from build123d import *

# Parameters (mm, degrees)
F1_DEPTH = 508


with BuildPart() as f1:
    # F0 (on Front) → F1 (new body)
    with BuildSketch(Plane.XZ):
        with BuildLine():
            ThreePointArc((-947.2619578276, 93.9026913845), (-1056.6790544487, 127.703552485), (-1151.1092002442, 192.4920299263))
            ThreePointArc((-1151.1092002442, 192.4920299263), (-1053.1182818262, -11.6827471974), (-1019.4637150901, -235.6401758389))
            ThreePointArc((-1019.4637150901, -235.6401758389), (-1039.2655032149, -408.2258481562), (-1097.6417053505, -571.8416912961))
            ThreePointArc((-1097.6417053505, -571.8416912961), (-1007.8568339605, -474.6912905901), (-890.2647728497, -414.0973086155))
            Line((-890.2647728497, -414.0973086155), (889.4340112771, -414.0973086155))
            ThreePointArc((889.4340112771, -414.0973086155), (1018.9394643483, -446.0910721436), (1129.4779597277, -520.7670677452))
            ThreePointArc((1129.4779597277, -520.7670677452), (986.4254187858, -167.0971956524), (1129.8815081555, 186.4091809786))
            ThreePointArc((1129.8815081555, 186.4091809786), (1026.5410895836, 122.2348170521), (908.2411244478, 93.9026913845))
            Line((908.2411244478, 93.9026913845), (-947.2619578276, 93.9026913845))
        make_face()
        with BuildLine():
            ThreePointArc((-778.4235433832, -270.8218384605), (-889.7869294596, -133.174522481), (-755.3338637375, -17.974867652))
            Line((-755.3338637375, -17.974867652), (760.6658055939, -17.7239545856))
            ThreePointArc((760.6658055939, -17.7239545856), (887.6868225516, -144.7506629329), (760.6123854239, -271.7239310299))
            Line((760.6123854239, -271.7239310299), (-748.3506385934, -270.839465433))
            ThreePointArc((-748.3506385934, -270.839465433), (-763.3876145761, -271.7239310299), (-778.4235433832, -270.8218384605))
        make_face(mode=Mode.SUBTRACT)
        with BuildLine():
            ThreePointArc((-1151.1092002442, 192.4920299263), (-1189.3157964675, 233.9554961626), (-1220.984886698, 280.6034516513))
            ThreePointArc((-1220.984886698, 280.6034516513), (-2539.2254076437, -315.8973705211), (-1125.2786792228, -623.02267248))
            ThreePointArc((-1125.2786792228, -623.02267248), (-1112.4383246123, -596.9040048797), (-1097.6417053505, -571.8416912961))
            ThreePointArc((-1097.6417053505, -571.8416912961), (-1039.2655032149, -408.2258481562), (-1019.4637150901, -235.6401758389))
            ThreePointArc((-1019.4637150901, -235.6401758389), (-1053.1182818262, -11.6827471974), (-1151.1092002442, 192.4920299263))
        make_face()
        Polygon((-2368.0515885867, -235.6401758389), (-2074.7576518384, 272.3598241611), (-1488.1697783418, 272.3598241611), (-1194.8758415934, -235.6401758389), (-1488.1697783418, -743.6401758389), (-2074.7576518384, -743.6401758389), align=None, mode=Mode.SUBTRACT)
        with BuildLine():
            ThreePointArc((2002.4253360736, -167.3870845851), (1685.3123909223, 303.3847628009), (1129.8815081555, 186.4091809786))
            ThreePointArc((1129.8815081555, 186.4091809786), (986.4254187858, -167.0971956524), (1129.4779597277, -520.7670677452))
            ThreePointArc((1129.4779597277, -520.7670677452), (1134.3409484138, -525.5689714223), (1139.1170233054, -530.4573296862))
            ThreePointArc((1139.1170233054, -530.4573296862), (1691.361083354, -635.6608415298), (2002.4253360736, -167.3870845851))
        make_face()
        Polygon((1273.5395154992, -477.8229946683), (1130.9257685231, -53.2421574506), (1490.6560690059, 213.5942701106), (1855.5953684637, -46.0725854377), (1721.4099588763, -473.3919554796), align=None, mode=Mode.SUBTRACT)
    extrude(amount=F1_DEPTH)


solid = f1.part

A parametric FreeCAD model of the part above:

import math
import FreeCAD as App
import Part
import Sketcher
from FreeCAD import Vector
Q = App.Units.Quantity


def add_polygon(sketch, points):
    """Adds a closed chain of lines whose ends are joined by coincident constraints."""
    first, n = sketch.GeometryCount, len(points)
    for a, b in zip(points, points[1:] + points[:1]):
        sketch.addGeometry(Part.LineSegment(App.Vector(*a, 0), App.Vector(*b, 0)), False)
    for i in range(n):
        sketch.addConstraint(Sketcher.Constraint("Coincident", first + i, 2, first + (i + 1) % n, 1))

doc = App.newDocument("Part")
params = doc.addObject("Spreadsheet::Sheet", "Params")
for row, (alias, value) in enumerate([
    ("sketch1_radius", "15 in"),
    ("sketch1_radius2", "30 in"),
    ("sketch1_radius3", "20 in"),
    ("sketch1_radius4", "5 in"),
    ("pad1_length", "20 in"),
], start=1):
    params.set(f"A{row}", alias)
    params.set(f"B{row}", "=" + value)
    params.setAlias(f"B{row}", alias)

body = doc.addObject("PartDesign::Body", "Body")

# Sketch on XZ plane
sketch1 = doc.addObject("Sketcher::SketchObject", "Sketch")
body.addObject(sketch1)
sketch1.AttachmentSupport = (doc.XZ_Plane, [""])
sketch1.MapMode = "FlatFace"
sketch1.addGeometry(Part.ArcOfCircle(Part.Circle(Vector(-891, 471, 0), Vector(0, 0, 1), 381), math.radians(-150), math.radians(-99)), False)  # 0
sketch1.addGeometry(Part.ArcOfCircle(Part.Circle(Vector(-1781, -236, 0), Vector(0, 0, 1), 762), math.radians(43), math.radians(329)), False)  # 1
sketch1.addGeometry(Part.ArcOfCircle(Part.Circle(Vector(-777, -778, 0), Vector(0, 0, 1), 381), math.radians(107), math.radians(156)), False)  # 2
sketch1.addGeometry(Part.LineSegment(Vector(-890, -414, 0), Vector(889, -414, 0)), False)  # 3
sketch1.addGeometry(Part.ArcOfCircle(Part.Circle(Vector(864, -794, 0), Vector(0, 0, 1), 381), math.radians(46), math.radians(86)), False)  # 4
sketch1.addGeometry(Part.ArcOfCircle(Part.Circle(Vector(864, -794, 0), Vector(0, 0, 1), 381), math.radians(43.82), math.radians(45.88)), False)  # 5
sketch1.addGeometry(Part.ArcOfCircle(Part.Circle(Vector(1494, -167, 0), Vector(0, 0, 1), 508), math.radians(-134), math.radians(136)), False)  # 6
sketch1.addGeometry(Part.ArcOfCircle(Part.Circle(Vector(880, 474, 0), Vector(0, 0, 1), 381), math.radians(-86), math.radians(-49)), False)  # 7
sketch1.addGeometry(Part.LineSegment(Vector(908, 94, 0), Vector(-947, 94, 0)), False)  # 8
add_polygon(sketch1, [(-2075, -744), (-2368, -236), (-2075, 272), (-1488, 272), (-1195, -236), (-1488, -744)])  # lines 9-14
sketch1.addGeometry(Part.ArcOfCircle(Part.Circle(Vector(-763, -145, 0), Vector(0, 0, 1), 127), math.radians(86), math.radians(277)), False)  # 15
sketch1.addGeometry(Part.LineSegment(Vector(-755, -18, 0), Vector(761, -18, 0)), False)  # 16
sketch1.addGeometry(Part.ArcOfCircle(Part.Circle(Vector(761, -145, 0), Vector(0, 0, 1), 127), math.radians(-90), math.radians(90)), False)  # 17
sketch1.addGeometry(Part.LineSegment(Vector(761, -272, 0), Vector(-748, -271, 0)), False)  # 18
add_polygon(sketch1, [(1721, -473), (1274, -478), (1131, -53), (1491, 214), (1856, -46)])  # lines 19-23
sketch1.addConstraint([
    Sketcher.Constraint("Coincident", 0, 1, 1, 1),
    Sketcher.Constraint("Coincident", 1, 2, 2, 2),
    Sketcher.Constraint("Coincident", 2, 1, 3, 1),
    Sketcher.Constraint("Coincident", 3, 2, 4, 2),
    Sketcher.Constraint("Tangent", 4, 1, 5, 2),
    Sketcher.Constraint("Coincident", 5, 1, 6, 1),
    Sketcher.Constraint("Coincident", 6, 2, 7, 2),
    Sketcher.Constraint("Coincident", 7, 1, 8, 1),
    Sketcher.Constraint("Coincident", 8, 2, 0, 2),
    Sketcher.Constraint("Coincident", 15, 1, 16, 1),
    Sketcher.Constraint("Tangent", 16, 2, 17, 2),
    Sketcher.Constraint("Tangent", 17, 1, 18, 1),
    Sketcher.Constraint("Coincident", 18, 2, 15, 2),
    Sketcher.Constraint("Horizontal", 3),
    Sketcher.Constraint("Horizontal", 8),
    Sketcher.Constraint("Horizontal", 11),
    Sketcher.Constraint("Horizontal", 14),
    Sketcher.Constraint("Equal", 0, 2),
    Sketcher.Constraint("Equal", 2, 4),
    Sketcher.Constraint("Equal", 4, 5),
    Sketcher.Constraint("Equal", 5, 7),
    Sketcher.Constraint("Equal", 15, 17),
    Sketcher.Constraint("Parallel", 9, 12),
    Sketcher.Constraint("Parallel", 10, 13),
    Sketcher.Constraint("Horizontal", 15, 3, 17, 3),
    Sketcher.Constraint("Horizontal", 1, 3, 9, 2),
    Sketcher.Constraint("Horizontal", 9, 2, 12, 2),
    Sketcher.Constraint("Vertical", 11, 2, 13, 2),
    Sketcher.Constraint("Vertical", 10, 2, 14, 2),
    Sketcher.Constraint("Equal", 19, 20),
    Sketcher.Constraint("Equal", 20, 21),
    Sketcher.Constraint("Equal", 21, 22),
    Sketcher.Constraint("Equal", 22, 23),
    Sketcher.Constraint("Radius", 0, Q("15 in")),
    Sketcher.Constraint("Radius", 1, Q("30 in")),
    Sketcher.Constraint("Radius", 6, Q("20 in")),
    Sketcher.Constraint("Radius", 15, Q("5 in")),
    Sketcher.Constraint("Angle", 9, Q("120 deg")),
    Sketcher.Constraint("DistanceX", 15, 3, 17, 3, Q("60 in")),
    Sketcher.Constraint("DistanceY", 3, 2, 7, 1, Q("20 in")),
    Sketcher.Constraint("DistanceY", 1, 3, 10, 2, Q("20 in")),
    Sketcher.Constraint("DistanceY", 6, 3, 7, 3, 641.2261),
    Sketcher.Constraint("DistanceY", 15, 3, 0, 3, 615.4188),
    Sketcher.Constraint("DistanceX", 2, 1, 15, 3, 126.951598),
    Sketcher.Constraint("DistanceY", 2, 3, 2, 1, 363.834599),
    Sketcher.Constraint("DistanceX", 4, 3, 5, 1, 274.896402),
    Sketcher.Constraint("DistanceX", 17, 3, 7, 1, 147.554299),
    Sketcher.Constraint("DistanceX", 9, 2, 0, 1, 1147.066702),
    Sketcher.Constraint("DistanceX", 13, 2, 1, 2, 362.891099),
    Sketcher.Constraint("DistanceX", 20, 2, 21, 2, 359.7303),
    Sketcher.Constraint("DistanceY", 6, 3, 22, 2, 121.314499),
    Sketcher.Constraint("DistanceX", 21, 2, 22, 2, 364.939299),
    Sketcher.Constraint("DistanceX", 4, 1, 23, 2, 591.931999),
    Sketcher.Constraint("Distance", 16, 1515.99969),
    Sketcher.Constraint("DistanceX", 3, 1, 3, 2, 1779.698784),
    Sketcher.Constraint("DistanceX", 8, 2, 8, 1, 1855.503082),
    Sketcher.Constraint("DistanceX", 11, 1, 11, 2, 586.587873),
    Sketcher.Constraint("DistanceX", -1, 1, 4, 3, 864.220621),
    Sketcher.Constraint("DistanceY", 4, 3, -1, 1, 794.262122),
    Sketcher.Constraint("DistanceY", -1, 1, 0, 1, 280.603452),
    Sketcher.Constraint("DistanceX", -1, 1, 3, 2, 889.434011),
    Sketcher.Constraint("DistanceX", -1, 1, 6, 2, 1129.881508),
    Sketcher.Constraint("DistanceX", 9, 2, -1, 1, 2368.051589),
    Sketcher.Constraint("DistanceX", 18, 2, -1, 1, 748.350639),
    Sketcher.Constraint("DistanceX", -1, 1, 20, 2, 1130.925769),
    Sketcher.Constraint("DistanceY", -1, 1, 21, 2, 213.59427),
    Sketcher.Constraint("DistanceX", -1, 1, 23, 2, 1721.409959),
])
sketch1.setExpression("Constraints[44]", "Params.sketch1_radius")
sketch1.setExpression("Constraints[45]", "Params.sketch1_radius2")
sketch1.setExpression("Constraints[46]", "Params.sketch1_radius3")
sketch1.setExpression("Constraints[47]", "Params.sketch1_radius4")
pad1 = doc.addObject("PartDesign::Pad", "Pad")
body.addObject(pad1)
pad1.Profile = sketch1
pad1.setExpression("Length", "Params.pad1_length")

doc.recompute()
